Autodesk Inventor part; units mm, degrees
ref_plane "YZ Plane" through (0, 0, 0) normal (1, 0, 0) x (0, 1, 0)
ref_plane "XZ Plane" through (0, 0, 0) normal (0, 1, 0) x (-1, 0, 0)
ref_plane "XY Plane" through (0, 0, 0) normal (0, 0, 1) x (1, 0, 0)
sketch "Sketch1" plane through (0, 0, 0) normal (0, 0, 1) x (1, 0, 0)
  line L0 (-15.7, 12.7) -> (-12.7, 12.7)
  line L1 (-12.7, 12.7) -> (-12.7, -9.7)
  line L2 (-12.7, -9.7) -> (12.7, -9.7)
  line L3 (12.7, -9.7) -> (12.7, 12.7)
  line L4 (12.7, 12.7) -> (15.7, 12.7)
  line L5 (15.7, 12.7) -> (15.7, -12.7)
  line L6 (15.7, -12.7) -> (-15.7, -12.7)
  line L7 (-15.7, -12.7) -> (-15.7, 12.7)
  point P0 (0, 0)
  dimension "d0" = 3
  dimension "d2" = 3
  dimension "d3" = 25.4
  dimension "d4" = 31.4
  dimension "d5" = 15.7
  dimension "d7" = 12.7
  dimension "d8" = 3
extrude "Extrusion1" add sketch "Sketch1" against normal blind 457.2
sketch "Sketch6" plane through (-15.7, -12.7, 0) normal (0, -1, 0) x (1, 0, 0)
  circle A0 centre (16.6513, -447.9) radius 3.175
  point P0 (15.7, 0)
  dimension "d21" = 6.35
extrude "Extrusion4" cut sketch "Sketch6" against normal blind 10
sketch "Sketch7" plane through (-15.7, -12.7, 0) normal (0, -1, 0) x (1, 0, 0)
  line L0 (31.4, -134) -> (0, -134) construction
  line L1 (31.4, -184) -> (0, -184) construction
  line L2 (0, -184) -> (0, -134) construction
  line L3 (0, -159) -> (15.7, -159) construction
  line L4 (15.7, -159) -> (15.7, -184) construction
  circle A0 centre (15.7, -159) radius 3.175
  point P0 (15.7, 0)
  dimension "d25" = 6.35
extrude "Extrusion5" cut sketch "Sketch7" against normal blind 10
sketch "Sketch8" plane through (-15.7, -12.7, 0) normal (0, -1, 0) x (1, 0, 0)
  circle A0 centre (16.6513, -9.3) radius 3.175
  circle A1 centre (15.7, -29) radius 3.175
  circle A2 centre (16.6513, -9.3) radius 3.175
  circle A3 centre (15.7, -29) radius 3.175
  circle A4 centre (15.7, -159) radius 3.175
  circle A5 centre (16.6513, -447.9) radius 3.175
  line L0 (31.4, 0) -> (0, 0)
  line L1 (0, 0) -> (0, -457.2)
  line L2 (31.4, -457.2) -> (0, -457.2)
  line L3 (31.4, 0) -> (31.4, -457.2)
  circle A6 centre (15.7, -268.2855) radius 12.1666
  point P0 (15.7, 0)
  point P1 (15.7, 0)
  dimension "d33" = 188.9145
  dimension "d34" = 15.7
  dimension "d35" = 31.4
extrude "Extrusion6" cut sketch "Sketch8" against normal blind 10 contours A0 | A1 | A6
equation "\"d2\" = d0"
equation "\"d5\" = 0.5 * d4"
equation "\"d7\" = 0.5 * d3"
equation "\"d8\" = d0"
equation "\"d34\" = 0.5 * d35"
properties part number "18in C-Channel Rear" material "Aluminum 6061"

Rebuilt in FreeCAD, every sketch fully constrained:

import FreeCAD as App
import Part
import Sketcher
Q = App.Units.Quantity

doc = App.newDocument("Part")
body = doc.addObject("PartDesign::Body", "Body")

sketch1 = body.newObject("Sketcher::SketchObject", "Sketch")
sketch1.AttachmentSupport = (doc.getObject("XY_Plane"), [""])
sketch1.MapMode = "FlatFace"
sketch1.addGeometry([
    Part.LineSegment(App.Vector(-12.7, 12.7, 0), App.Vector(-15.7, 12.7, 0)),
    Part.LineSegment(App.Vector(-15.7, 12.7, 0), App.Vector(-15.7, -12.7, 0)),
    Part.LineSegment(App.Vector(-15.7, -12.7, 0), App.Vector(15.7, -12.7, 0)),
    Part.LineSegment(App.Vector(15.7, -12.7, 0), App.Vector(15.7, 12.7, 0)),
    Part.LineSegment(App.Vector(15.7, 12.7, 0), App.Vector(12.7, 12.7, 0)),
    Part.LineSegment(App.Vector(12.7, 12.7, 0), App.Vector(12.7, -9.7, 0)),
    Part.LineSegment(App.Vector(12.7, -9.7, 0), App.Vector(-12.7, -9.7, 0)),
    Part.LineSegment(App.Vector(-12.7, -9.7, 0), App.Vector(-12.7, 12.7, 0)),
], False)
sketch1.addConstraint([
    Sketcher.Constraint("Coincident", 0, 2, 1, 1),
    Sketcher.Constraint("Coincident", 1, 2, 2, 1),
    Sketcher.Constraint("Coincident", 2, 2, 3, 1),
    Sketcher.Constraint("Coincident", 3, 2, 4, 1),
    Sketcher.Constraint("Coincident", 4, 2, 5, 1),
    Sketcher.Constraint("Coincident", 5, 2, 6, 1),
    Sketcher.Constraint("Coincident", 6, 2, 7, 1),
    Sketcher.Constraint("Coincident", 7, 2, 0, 1),
    Sketcher.Constraint("Horizontal", 0),
    Sketcher.Constraint("Vertical", 1),
    Sketcher.Constraint("Horizontal", 2),
    Sketcher.Constraint("Vertical", 3),
    Sketcher.Constraint("Horizontal", 4),
    Sketcher.Constraint("Vertical", 5),
    Sketcher.Constraint("Horizontal", 6),
    Sketcher.Constraint("Vertical", 7),
    Sketcher.Constraint("Symmetric", 0, 2, 2, 2, -1, 1),
    Sketcher.Constraint("Symmetric", 4, 2, 7, 2, -2),
    Sketcher.Constraint("Equal", 6, 1),
    Sketcher.Constraint("DistanceX", 6, 2, 6, 1, Q("1 in")),
    Sketcher.Constraint("DistanceX", 0, 2, 0, 1, Q("0.1181 in")),
    Sketcher.Constraint("DistanceY", 2, 2, 5, 2, Q("0.1181 in")),
])
pad1 = body.newObject("PartDesign::Pad", "Pad")
pad1.Profile = sketch1
pad1.Length = Q("18 in")
pad1.Reversed = True

sketch2 = body.newObject("Sketcher::SketchObject", "Sketch001")
sketch2.AttachmentSupport = (doc.getObject("XZ_Plane"), [""])
sketch2.MapMode = "FlatFace"
sketch2.AttachmentOffset = App.Placement(App.Vector(0, 0, 0.5 * 25.4), App.Rotation())
sketch2.addGeometry(Part.Circle(App.Vector(0.9513, -447.9, 0), App.Vector(0, 0, 1), 3.175), False)
sketch2.addConstraint([
    Sketcher.Constraint("Diameter", 0, Q("0.25 in")),
    Sketcher.Constraint("DistanceX", -1, 1, 0, 3, 0.9513),
    Sketcher.Constraint("DistanceY", 0, 3, -1, 1, 447.9),
])
pocket1 = body.newObject("PartDesign::Pocket", "Pocket")
pocket1.Profile = sketch2
pocket1.Length = Q("0.3937008 in")

sketch3 = body.newObject("Sketcher::SketchObject", "Sketch002")
sketch3.AttachmentSupport = (doc.getObject("XZ_Plane"), [""])
sketch3.MapMode = "FlatFace"
sketch3.AttachmentOffset = App.Placement(App.Vector(0, 0, 0.5 * 25.4), App.Rotation())
sketch3.addGeometry(Part.Circle(App.Vector(0, -159, 0), App.Vector(0, 0, 1), 3.175), False)
sketch3.addConstraint([
    Sketcher.Constraint("PointOnObject", 0, 3, -2),
    Sketcher.Constraint("Diameter", 0, Q("0.25 in")),
    Sketcher.Constraint("DistanceY", 0, 3, -1, 1, 159.0),
])
pocket2 = body.newObject("PartDesign::Pocket", "Pocket001")
pocket2.Profile = sketch3
pocket2.Length = Q("0.3937008 in")

sketch4 = body.newObject("Sketcher::SketchObject", "Sketch003")
sketch4.AttachmentSupport = (doc.getObject("XZ_Plane"), [""])
sketch4.MapMode = "FlatFace"
sketch4.AttachmentOffset = App.Placement(App.Vector(0, 0, 0.5 * 25.4), App.Rotation())
sketch4.addGeometry([
    Part.Circle(App.Vector(0.9513, -9.3, 0), App.Vector(0, 0, 1), 3.175),
    Part.Circle(App.Vector(0, -29, 0), App.Vector(0, 0, 1), 3.175),
    Part.Circle(App.Vector(0, -268.2855, 0), App.Vector(0, 0, 1), 12.1666),
], False)
sketch4.addConstraint([
    Sketcher.Constraint("Equal", 0, 1),
    Sketcher.Constraint("PointOnObject", 1, 3, -2),
    Sketcher.Constraint("PointOnObject", 2, 3, -2),
    Sketcher.Constraint("Diameter", 0, Q("0.25 in")),
    Sketcher.Constraint("Diameter", 2, Q("0.958 in")),
    Sketcher.Constraint("DistanceY", 1, 3, 0, 3, Q("0.7756 in")),
    Sketcher.Constraint("DistanceY", 2, 3, 1, 3, Q("9.4207 in")),
    Sketcher.Constraint("DistanceX", -1, 1, 0, 3, 0.9513),
    Sketcher.Constraint("DistanceY", 0, 3, -1, 1, 9.3),
])
pocket3 = body.newObject("PartDesign::Pocket", "Pocket002")
pocket3.Profile = sketch4
pocket3.Length = Q("0.3937008 in")

doc.recompute()
